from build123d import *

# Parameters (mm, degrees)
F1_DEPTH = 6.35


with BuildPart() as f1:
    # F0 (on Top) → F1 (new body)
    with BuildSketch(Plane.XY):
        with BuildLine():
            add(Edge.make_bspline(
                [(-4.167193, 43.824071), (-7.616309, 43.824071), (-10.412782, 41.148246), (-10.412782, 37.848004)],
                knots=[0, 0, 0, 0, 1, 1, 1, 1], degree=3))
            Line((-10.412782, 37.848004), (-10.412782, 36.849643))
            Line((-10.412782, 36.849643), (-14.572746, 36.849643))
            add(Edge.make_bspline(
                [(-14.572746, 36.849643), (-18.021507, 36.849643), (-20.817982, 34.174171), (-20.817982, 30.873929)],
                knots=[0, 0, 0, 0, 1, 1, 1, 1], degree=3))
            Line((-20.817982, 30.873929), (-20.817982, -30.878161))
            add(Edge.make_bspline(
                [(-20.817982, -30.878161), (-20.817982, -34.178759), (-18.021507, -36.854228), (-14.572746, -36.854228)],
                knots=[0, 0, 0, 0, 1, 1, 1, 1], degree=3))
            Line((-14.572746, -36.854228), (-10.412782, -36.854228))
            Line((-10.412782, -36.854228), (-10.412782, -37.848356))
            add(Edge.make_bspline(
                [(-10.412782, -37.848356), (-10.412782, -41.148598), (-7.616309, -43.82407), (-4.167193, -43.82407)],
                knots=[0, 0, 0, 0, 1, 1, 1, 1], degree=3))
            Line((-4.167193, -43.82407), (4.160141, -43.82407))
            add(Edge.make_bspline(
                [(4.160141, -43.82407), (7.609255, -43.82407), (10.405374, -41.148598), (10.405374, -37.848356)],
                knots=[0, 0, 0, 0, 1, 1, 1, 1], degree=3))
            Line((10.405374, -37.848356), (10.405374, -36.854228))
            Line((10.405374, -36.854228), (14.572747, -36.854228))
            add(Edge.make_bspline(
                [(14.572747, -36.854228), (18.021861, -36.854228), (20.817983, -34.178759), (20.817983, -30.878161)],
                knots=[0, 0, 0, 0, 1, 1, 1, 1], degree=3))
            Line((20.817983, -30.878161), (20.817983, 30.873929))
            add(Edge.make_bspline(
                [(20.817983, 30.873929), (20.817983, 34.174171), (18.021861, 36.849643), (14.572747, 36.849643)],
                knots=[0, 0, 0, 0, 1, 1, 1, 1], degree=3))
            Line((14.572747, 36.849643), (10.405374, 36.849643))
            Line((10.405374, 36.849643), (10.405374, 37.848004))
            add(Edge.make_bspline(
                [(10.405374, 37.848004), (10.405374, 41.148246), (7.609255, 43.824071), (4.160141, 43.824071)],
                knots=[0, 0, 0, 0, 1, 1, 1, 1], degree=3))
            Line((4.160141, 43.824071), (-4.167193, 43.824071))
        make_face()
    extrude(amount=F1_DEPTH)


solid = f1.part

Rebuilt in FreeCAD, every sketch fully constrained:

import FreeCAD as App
import Part
import Sketcher

V = App.Vector
Q = App.Units.Quantity

doc = App.newDocument("Part")
body = doc.addObject("PartDesign::Body", "Body")

# Sketch on XY plane
sketch1 = body.newObject("Sketcher::SketchObject", "Sketch")
sketch1.AttachmentSupport = (doc.getObject("XY_Plane"), [""])
sketch1.MapMode = "FlatFace"
sketch1.addGeometry(Part.BSplineCurve([V(-4.167193, 43.824071, 0), V(-7.616309, 43.824071, 0), V(-10.412782, 41.148246, 0), V(-10.412782, 37.848004, 0)], [4, 4], [0, 1], False, 3, [1, 1, 1, 1], False), False)
sketch1.addGeometry(Part.LineSegment(V(-10.412782, 37.848004, 0), V(-10.412782, 36.849643, 0)), False)
sketch1.addGeometry(Part.LineSegment(V(-10.412782, 36.849643, 0), V(-14.572746, 36.849643, 0)), False)
sketch1.addGeometry(Part.BSplineCurve([V(-14.572746, 36.849643, 0), V(-18.021507, 36.849643, 0), V(-20.817982, 34.174171, 0), V(-20.817982, 30.873929, 0)], [4, 4], [0, 1], False, 3, [1, 1, 1, 1], False), False)
sketch1.addGeometry(Part.LineSegment(V(-20.817982, 30.873929, 0), V(-20.817982, -30.878161, 0)), False)
sketch1.addGeometry(Part.BSplineCurve([V(-20.817982, -30.878161, 0), V(-20.817982, -34.178759, 0), V(-18.021507, -36.854228, 0), V(-14.572746, -36.854228, 0)], [4, 4], [0, 1], False, 3, [1, 1, 1, 1], False), False)
sketch1.addGeometry(Part.LineSegment(V(-14.572746, -36.854228, 0), V(-10.412782, -36.854228, 0)), False)
sketch1.addGeometry(Part.LineSegment(V(-10.412782, -36.854228, 0), V(-10.412782, -37.848356, 0)), False)
sketch1.addGeometry(Part.BSplineCurve([V(-10.412782, -37.848356, 0), V(-10.412782, -41.148598, 0), V(-7.616309, -43.82407, 0), V(-4.167193, -43.82407, 0)], [4, 4], [0, 1], False, 3, [1, 1, 1, 1], False), False)
sketch1.addGeometry(Part.LineSegment(V(-4.167193, -43.82407, 0), V(4.160141, -43.82407, 0)), False)
sketch1.addGeometry(Part.BSplineCurve([V(4.160141, -43.82407, 0), V(7.609255, -43.82407, 0), V(10.405374, -41.148598, 0), V(10.405374, -37.848356, 0)], [4, 4], [0, 1], False, 3, [1, 1, 1, 1], False), False)
sketch1.addGeometry(Part.LineSegment(V(10.405374, -37.848356, 0), V(10.405374, -36.854228, 0)), False)
sketch1.addGeometry(Part.LineSegment(V(10.405374, -36.854228, 0), V(14.572747, -36.854228, 0)), False)
sketch1.addGeometry(Part.BSplineCurve([V(14.572747, -36.854228, 0), V(18.021861, -36.854228, 0), V(20.817983, -34.178759, 0), V(20.817983, -30.878161, 0)], [4, 4], [0, 1], False, 3, [1, 1, 1, 1], False), False)
sketch1.addGeometry(Part.LineSegment(V(20.817983, -30.878161, 0), V(20.817983, 30.873929, 0)), False)
sketch1.addGeometry(Part.BSplineCurve([V(20.817983, 30.873929, 0), V(20.817983, 34.174171, 0), V(18.021861, 36.849643, 0), V(14.572747, 36.849643, 0)], [4, 4], [0, 1], False, 3, [1, 1, 1, 1], False), False)
sketch1.addGeometry(Part.LineSegment(V(14.572747, 36.849643, 0), V(10.405374, 36.849643, 0)), False)
sketch1.addGeometry(Part.LineSegment(V(10.405374, 36.849643, 0), V(10.405374, 37.848004, 0)), False)
sketch1.addGeometry(Part.BSplineCurve([V(10.405374, 37.848004, 0), V(10.405374, 41.148246, 0), V(7.609255, 43.824071, 0), V(4.160141, 43.824071, 0)], [4, 4], [0, 1], False, 3, [1, 1, 1, 1], False), False)
sketch1.addGeometry(Part.LineSegment(V(4.160141, 43.824071, 0), V(-4.167193, 43.824071, 0)), False)
sketch1.addConstraint(Sketcher.Constraint("Block", 0))
sketch1.addConstraint(Sketcher.Constraint("Block", 3))
sketch1.addConstraint(Sketcher.Constraint("Block", 5))
sketch1.addConstraint(Sketcher.Constraint("Block", 8))
sketch1.addConstraint(Sketcher.Constraint("Block", 10))
sketch1.addConstraint(Sketcher.Constraint("Block", 13))
sketch1.addConstraint(Sketcher.Constraint("Block", 15))
sketch1.addConstraint(Sketcher.Constraint("Block", 18))
sketch1.addConstraint(Sketcher.Constraint("Coincident", 0, 2, 1, 1))
sketch1.addConstraint(Sketcher.Constraint("Coincident", 1, 2, 2, 1))
sketch1.addConstraint(Sketcher.Constraint("Coincident", 2, 2, 3, 1))
sketch1.addConstraint(Sketcher.Constraint("Coincident", 3, 2, 4, 1))
sketch1.addConstraint(Sketcher.Constraint("Coincident", 4, 2, 5, 1))
sketch1.addConstraint(Sketcher.Constraint("Coincident", 5, 2, 6, 1))
sketch1.addConstraint(Sketcher.Constraint("Coincident", 6, 2, 7, 1))
sketch1.addConstraint(Sketcher.Constraint("Coincident", 7, 2, 8, 1))
sketch1.addConstraint(Sketcher.Constraint("Coincident", 8, 2, 9, 1))
sketch1.addConstraint(Sketcher.Constraint("Coincident", 9, 2, 10, 1))
sketch1.addConstraint(Sketcher.Constraint("Coincident", 10, 2, 11, 1))
sketch1.addConstraint(Sketcher.Constraint("Coincident", 11, 2, 12, 1))
sketch1.addConstraint(Sketcher.Constraint("Coincident", 12, 2, 13, 1))
sketch1.addConstraint(Sketcher.Constraint("Coincident", 13, 2, 14, 1))
sketch1.addConstraint(Sketcher.Constraint("Coincident", 14, 2, 15, 1))
sketch1.addConstraint(Sketcher.Constraint("Coincident", 15, 2, 16, 1))
sketch1.addConstraint(Sketcher.Constraint("Coincident", 16, 2, 17, 1))
sketch1.addConstraint(Sketcher.Constraint("Coincident", 17, 2, 18, 1))
sketch1.addConstraint(Sketcher.Constraint("Coincident", 18, 2, 19, 1))
sketch1.addConstraint(Sketcher.Constraint("Coincident", 19, 2, 0, 1))
sketch1.addConstraint(Sketcher.Constraint("Vertical", 1))
sketch1.addConstraint(Sketcher.Constraint("Horizontal", 2))
sketch1.addConstraint(Sketcher.Constraint("Horizontal", 6))
sketch1.addConstraint(Sketcher.Constraint("Vertical", 7))
sketch1.addConstraint(Sketcher.Constraint("Vertical", 11))
sketch1.addConstraint(Sketcher.Constraint("Horizontal", 12))
sketch1.addConstraint(Sketcher.Constraint("Horizontal", 16))
sketch1.addConstraint(Sketcher.Constraint("Vertical", 17))
pad1 = body.newObject("PartDesign::Pad", "Pad")
pad1.Profile = sketch1
pad1.Length = Q("0.25 in")

doc.recompute()
